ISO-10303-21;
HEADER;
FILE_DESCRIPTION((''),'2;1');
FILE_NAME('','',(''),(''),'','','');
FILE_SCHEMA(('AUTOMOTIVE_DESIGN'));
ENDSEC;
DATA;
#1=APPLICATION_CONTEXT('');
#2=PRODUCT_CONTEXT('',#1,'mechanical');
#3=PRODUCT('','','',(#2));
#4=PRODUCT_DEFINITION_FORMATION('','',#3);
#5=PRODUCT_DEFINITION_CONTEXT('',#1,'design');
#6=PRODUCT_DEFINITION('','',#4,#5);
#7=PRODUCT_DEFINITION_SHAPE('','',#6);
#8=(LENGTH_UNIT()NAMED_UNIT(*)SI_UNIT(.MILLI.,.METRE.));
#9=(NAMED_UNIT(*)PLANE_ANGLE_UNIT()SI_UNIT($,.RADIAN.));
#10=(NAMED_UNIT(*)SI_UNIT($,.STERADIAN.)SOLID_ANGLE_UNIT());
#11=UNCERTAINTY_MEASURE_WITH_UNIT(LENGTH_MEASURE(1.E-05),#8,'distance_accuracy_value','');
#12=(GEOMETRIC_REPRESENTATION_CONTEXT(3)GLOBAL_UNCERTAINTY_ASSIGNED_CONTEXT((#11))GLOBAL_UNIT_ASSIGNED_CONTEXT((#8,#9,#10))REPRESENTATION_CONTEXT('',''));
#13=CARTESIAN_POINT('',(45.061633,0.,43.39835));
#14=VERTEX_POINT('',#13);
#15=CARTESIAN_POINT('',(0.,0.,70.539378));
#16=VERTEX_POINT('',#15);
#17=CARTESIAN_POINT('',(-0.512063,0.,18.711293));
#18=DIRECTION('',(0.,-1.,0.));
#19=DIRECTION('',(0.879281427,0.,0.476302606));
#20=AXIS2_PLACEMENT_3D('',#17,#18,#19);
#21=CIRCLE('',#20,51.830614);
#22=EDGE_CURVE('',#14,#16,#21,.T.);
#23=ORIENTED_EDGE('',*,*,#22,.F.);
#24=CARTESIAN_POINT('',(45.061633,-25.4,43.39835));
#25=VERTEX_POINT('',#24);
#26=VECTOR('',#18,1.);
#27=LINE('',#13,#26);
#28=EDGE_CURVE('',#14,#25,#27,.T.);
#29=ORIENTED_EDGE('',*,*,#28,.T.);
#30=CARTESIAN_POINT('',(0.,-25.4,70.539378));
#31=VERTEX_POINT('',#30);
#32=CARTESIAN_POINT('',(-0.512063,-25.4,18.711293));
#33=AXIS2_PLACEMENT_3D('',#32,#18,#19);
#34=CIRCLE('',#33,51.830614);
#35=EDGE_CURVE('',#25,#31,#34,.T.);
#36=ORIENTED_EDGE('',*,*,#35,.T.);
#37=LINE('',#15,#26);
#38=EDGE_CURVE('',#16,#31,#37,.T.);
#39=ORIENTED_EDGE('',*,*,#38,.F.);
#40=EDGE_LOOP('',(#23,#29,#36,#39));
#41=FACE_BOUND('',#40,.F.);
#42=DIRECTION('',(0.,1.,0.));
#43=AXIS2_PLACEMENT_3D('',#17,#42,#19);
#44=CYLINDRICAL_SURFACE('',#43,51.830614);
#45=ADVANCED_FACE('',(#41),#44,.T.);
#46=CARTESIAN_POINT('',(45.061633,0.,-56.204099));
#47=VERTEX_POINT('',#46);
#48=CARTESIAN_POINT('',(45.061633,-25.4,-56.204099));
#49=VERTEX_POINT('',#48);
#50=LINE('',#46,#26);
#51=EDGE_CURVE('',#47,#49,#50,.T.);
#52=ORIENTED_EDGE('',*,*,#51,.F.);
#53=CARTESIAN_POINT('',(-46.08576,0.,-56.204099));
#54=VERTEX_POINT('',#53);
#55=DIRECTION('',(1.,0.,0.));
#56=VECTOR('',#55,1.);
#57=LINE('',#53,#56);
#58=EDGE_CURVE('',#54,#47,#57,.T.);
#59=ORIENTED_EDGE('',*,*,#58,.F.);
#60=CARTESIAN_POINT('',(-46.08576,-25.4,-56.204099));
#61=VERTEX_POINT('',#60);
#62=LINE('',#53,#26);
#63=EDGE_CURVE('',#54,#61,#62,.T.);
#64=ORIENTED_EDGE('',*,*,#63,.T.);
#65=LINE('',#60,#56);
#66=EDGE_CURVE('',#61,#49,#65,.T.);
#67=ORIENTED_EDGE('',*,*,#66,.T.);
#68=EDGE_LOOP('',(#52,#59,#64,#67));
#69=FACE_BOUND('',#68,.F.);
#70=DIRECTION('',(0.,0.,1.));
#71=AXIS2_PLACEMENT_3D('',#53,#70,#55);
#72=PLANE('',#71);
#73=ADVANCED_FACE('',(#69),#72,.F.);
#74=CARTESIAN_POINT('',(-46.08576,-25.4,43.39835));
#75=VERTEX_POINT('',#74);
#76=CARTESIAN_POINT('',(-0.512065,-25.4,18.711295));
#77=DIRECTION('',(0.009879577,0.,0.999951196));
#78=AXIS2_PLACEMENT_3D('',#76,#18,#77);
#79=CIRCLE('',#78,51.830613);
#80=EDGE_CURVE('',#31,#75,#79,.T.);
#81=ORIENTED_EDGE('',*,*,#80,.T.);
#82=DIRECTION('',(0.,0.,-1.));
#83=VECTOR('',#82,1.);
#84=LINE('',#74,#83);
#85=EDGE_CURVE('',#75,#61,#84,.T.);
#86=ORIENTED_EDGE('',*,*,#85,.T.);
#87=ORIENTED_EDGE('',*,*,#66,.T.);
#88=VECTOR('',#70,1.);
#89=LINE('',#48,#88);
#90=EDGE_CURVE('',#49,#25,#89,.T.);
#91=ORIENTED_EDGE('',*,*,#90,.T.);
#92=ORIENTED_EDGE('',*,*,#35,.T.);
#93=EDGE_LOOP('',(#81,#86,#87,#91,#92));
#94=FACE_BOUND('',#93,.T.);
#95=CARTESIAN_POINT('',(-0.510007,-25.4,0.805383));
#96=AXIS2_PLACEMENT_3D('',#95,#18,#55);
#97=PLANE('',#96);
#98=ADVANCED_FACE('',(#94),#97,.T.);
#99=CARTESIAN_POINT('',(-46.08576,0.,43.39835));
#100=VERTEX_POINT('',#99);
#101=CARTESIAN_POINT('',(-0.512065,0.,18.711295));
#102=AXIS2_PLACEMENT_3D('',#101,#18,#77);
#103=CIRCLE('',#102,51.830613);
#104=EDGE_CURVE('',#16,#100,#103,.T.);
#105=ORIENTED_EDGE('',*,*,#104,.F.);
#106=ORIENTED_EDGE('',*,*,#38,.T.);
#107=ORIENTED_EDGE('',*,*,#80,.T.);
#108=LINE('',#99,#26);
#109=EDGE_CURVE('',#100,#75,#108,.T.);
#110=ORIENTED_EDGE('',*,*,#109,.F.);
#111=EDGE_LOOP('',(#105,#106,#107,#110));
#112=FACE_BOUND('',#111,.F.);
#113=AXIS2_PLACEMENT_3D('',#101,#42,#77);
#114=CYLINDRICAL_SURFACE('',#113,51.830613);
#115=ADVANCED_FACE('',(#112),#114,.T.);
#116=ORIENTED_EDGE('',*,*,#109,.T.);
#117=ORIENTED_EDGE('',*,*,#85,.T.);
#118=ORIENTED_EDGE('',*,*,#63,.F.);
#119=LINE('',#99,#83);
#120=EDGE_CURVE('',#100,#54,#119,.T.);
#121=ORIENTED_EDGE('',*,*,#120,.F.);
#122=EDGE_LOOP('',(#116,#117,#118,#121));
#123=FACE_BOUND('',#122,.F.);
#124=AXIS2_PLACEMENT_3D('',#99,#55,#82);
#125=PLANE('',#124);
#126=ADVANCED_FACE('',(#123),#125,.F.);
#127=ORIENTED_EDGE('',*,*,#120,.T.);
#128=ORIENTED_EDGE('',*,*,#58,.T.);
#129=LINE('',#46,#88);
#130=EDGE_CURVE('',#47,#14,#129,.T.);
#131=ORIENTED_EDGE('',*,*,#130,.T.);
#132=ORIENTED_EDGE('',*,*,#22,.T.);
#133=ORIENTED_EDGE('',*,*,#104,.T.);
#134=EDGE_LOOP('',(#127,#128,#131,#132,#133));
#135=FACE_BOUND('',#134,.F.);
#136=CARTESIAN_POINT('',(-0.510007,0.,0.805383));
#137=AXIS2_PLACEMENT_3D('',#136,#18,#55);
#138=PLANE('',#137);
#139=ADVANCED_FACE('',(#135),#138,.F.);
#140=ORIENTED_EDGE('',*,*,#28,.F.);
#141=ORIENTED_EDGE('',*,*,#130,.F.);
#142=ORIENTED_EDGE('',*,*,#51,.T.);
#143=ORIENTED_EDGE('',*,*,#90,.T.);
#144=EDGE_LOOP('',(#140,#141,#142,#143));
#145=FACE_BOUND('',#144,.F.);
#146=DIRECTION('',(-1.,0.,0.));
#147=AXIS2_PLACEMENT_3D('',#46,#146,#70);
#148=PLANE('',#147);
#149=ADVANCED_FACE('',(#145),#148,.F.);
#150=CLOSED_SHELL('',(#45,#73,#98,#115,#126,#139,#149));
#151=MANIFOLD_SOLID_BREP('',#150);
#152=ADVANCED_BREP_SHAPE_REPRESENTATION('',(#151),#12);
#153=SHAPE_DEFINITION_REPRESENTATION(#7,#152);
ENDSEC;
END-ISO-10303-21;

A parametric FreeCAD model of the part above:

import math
import FreeCAD as App
import Part
import Sketcher
from FreeCAD import Vector
Q = App.Units.Quantity

doc = App.newDocument("Part")
params = doc.addObject("Spreadsheet::Sheet", "Params")
for row, (alias, value) in enumerate([
    ("pad1_length", "1 in"),
], start=1):
    params.set(f"A{row}", alias)
    params.set(f"B{row}", "=" + value)
    params.setAlias(f"B{row}", alias)

body = doc.addObject("PartDesign::Body", "Body")

# Sketch on XZ plane
sketch1 = body.newObject("Sketcher::SketchObject", "Sketch")
sketch1.AttachmentSupport = (doc.getObject("XZ_Plane"), [""])
sketch1.MapMode = "FlatFace"
sketch1.addGeometry(Part.LineSegment(Vector(-46, 43, 0), Vector(-46, -56, 0)), False)
sketch1.addGeometry(Part.LineSegment(Vector(-46, -56, 0), Vector(45, -56, 0)), False)
sketch1.addGeometry(Part.LineSegment(Vector(45, -56, 0), Vector(45, 43, 0)), False)
sketch1.addGeometry(Part.ArcOfCircle(Part.Circle(Vector(-1, 19, 0), Vector(0, 0, 1), 52), math.radians(28), math.radians(89)), False)
sketch1.addGeometry(Part.ArcOfCircle(Part.Circle(Vector(-1, 19, 0), Vector(0, 0, 1), 52), math.radians(89), math.radians(152)), False)
sketch1.addConstraint(Sketcher.Constraint("Coincident", 0, 2, 1, 1))
sketch1.addConstraint(Sketcher.Constraint("Coincident", 1, 2, 2, 1))
sketch1.addConstraint(Sketcher.Constraint("Coincident", 2, 2, 3, 1))
sketch1.addConstraint(Sketcher.Constraint("Tangent", 3, 2, 4, 1))
sketch1.addConstraint(Sketcher.Constraint("Coincident", 4, 2, 0, 1))
sketch1.addConstraint(Sketcher.Constraint("Vertical", 0))
sketch1.addConstraint(Sketcher.Constraint("Horizontal", 1))
sketch1.addConstraint(Sketcher.Constraint("Vertical", 2))
sketch1.addConstraint(Sketcher.Constraint("Equal", 3, 4))
sketch1.addConstraint(Sketcher.Constraint("PointOnObject", 3, 2, -2))
sketch1.addConstraint(Sketcher.Constraint("Horizontal", 2, 2, 4, 2))
sketch1.addConstraint(Sketcher.Constraint("DistanceX", 0, 2, -1, 1, Q("1.8144 in")))
sketch1.addConstraint(Sketcher.Constraint("Radius", 3, Q("51.830614 mm")))
sketch1.addConstraint(Sketcher.Constraint("DistanceY", 0, 2, 0, 1, Q("99.602449 mm")))
sketch1.addConstraint(Sketcher.Constraint("DistanceY", 0, 2, -1, 1, Q("56.204099 mm")))
sketch1.addConstraint(Sketcher.Constraint("DistanceX", 1, 1, 1, 2, Q("91.147393 mm")))
pad1 = body.newObject("PartDesign::Pad", "Pad")
pad1.Profile = sketch1
pad1.setExpression("Length", "Params.pad1_length")

doc.recompute()
